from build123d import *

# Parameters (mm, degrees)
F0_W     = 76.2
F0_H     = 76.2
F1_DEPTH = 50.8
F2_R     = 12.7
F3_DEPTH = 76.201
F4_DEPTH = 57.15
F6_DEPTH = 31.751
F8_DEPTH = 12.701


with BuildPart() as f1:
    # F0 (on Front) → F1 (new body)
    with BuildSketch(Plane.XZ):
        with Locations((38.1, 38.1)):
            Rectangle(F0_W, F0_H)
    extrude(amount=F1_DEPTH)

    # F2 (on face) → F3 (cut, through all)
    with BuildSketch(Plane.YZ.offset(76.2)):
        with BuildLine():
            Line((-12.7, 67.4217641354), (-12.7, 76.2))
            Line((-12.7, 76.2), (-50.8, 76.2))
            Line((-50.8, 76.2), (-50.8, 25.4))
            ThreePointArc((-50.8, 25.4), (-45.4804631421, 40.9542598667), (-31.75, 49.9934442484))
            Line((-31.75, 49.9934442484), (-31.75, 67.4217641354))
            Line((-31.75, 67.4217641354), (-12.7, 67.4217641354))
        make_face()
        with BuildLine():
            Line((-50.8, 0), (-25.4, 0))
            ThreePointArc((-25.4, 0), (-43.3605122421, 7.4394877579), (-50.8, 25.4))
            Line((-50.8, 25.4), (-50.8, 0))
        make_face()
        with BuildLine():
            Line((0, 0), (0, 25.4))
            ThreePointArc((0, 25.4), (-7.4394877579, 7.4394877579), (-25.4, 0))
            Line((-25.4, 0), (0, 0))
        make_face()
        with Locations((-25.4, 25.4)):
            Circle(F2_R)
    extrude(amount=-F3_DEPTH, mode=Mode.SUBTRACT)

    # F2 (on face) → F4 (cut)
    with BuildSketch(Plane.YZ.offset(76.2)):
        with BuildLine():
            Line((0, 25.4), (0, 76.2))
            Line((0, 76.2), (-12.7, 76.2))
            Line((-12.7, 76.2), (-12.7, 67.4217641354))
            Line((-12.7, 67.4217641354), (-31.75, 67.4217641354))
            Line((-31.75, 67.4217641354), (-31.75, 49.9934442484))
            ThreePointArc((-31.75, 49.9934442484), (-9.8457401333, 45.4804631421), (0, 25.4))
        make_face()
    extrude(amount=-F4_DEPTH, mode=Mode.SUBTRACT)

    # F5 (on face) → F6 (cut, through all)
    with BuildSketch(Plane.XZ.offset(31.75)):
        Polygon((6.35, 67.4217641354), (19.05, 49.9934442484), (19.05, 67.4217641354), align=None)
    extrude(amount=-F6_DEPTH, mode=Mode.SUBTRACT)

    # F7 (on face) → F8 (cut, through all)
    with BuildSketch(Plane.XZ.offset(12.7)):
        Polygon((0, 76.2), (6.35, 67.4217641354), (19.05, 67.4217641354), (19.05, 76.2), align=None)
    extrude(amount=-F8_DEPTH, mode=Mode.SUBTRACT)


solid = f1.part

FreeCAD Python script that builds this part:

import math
import FreeCAD as App
import Part
import Sketcher
Q = App.Units.Quantity


def add_polygon(sketch, points):
    """Adds a closed chain of lines whose ends are joined by coincident constraints."""
    first, n = sketch.GeometryCount, len(points)
    for a, b in zip(points, points[1:] + points[:1]):
        sketch.addGeometry(Part.LineSegment(App.Vector(*a, 0), App.Vector(*b, 0)), False)
    for i in range(n):
        sketch.addConstraint(Sketcher.Constraint("Coincident", first + i, 2, first + (i + 1) % n, 1))

doc = App.newDocument("Part")
body = doc.addObject("PartDesign::Body", "Body")

# Sketch on XZ plane
sketch1 = doc.addObject("Sketcher::SketchObject", "Sketch")
body.addObject(sketch1)
sketch1.AttachmentSupport = (doc.XZ_Plane, [""])
sketch1.MapMode = "FlatFace"
add_polygon(sketch1, [(0, 76), (0, 0), (76, 0), (76, 76)])  # lines 0-3
sketch1.addConstraint([
    Sketcher.Constraint("Vertical", 0),
    Sketcher.Constraint("Horizontal", 1),
    Sketcher.Constraint("Vertical", 2),
    Sketcher.Constraint("Horizontal", 3),
    Sketcher.Constraint("Coincident", 0, 2, -1, 1),
    Sketcher.Constraint("Equal", 3, 0),
    Sketcher.Constraint("DistanceX", 1, 1, 1, 2, Q("3 in")),
])
pad1 = doc.addObject("PartDesign::Pad", "Pad")
body.addObject(pad1)
pad1.Profile = sketch1
pad1.Length = Q("2 in")

# Sketch on YZ plane
sketch2 = doc.addObject("Sketcher::SketchObject", "Sketch001")
body.addObject(sketch2)
sketch2.AttachmentSupport = (doc.YZ_Plane, [""])
sketch2.MapMode = "FlatFace"
sketch2.AttachmentOffset = App.Placement(App.Vector(0, 0, 3 * 25.4), App.Rotation())
sketch2.addGeometry([
    Part.LineSegment(App.Vector(-13, 67, 0), App.Vector(-13, 76, 0)),  # 0
    Part.LineSegment(App.Vector(-13, 76, 0), App.Vector(-51, 76, 0)),  # 1
    Part.LineSegment(App.Vector(-51, 76, 0), App.Vector(-51, 25, 0)),  # 2
    Part.ArcOfCircle(Part.Circle(App.Vector(-25, 25, 0), App.Vector(0, 0, 1), 25), math.radians(104), math.radians(180)),  # 3
    Part.LineSegment(App.Vector(-32, 50, 0), App.Vector(-32, 67, 0)),  # 4
    Part.LineSegment(App.Vector(-32, 67, 0), App.Vector(-13, 67, 0)),  # 5
    Part.LineSegment(App.Vector(-51, 0, 0), App.Vector(-25, 0, 0)),  # 6
    Part.ArcOfCircle(Part.Circle(App.Vector(-25, 25, 0), App.Vector(0, 0, 1), 25), math.radians(180), math.radians(270)),  # 7
    Part.LineSegment(App.Vector(-51, 25, 0), App.Vector(-51, 0, 0)),  # 8
    Part.LineSegment(App.Vector(0, 0, 0), App.Vector(0, 25, 0)),  # 9
    Part.ArcOfCircle(Part.Circle(App.Vector(-25, 25, 0), App.Vector(0, 0, 1), 25), math.radians(-90), math.radians(0)),  # 10
    Part.LineSegment(App.Vector(-25, 0, 0), App.Vector(0, 0, 0)),  # 11
    Part.Circle(App.Vector(-25, 25, 0), App.Vector(0, 0, 1), 13),  # 12
], False)
sketch2.addConstraint([
    Sketcher.Constraint("Coincident", 0, 2, 1, 1),
    Sketcher.Constraint("Coincident", 1, 2, 2, 1),
    Sketcher.Constraint("Tangent", 2, 2, 3, 2),
    Sketcher.Constraint("Coincident", 3, 1, 4, 1),
    Sketcher.Constraint("Coincident", 4, 2, 5, 1),
    Sketcher.Constraint("Coincident", 5, 2, 0, 1),
    Sketcher.Constraint("Tangent", 6, 2, 7, 2),
    Sketcher.Constraint("Tangent", 7, 1, 8, 1),
    Sketcher.Constraint("Coincident", 8, 2, 6, 1),
    Sketcher.Constraint("Tangent", 9, 2, 10, 2),
    Sketcher.Constraint("Tangent", 10, 1, 11, 1),
    Sketcher.Constraint("Coincident", 11, 2, 9, 1),
    Sketcher.Constraint("Vertical", 0),
    Sketcher.Constraint("Horizontal", 1),
    Sketcher.Constraint("Vertical", 2),
    Sketcher.Constraint("Vertical", 4),
    Sketcher.Constraint("Horizontal", 5),
    Sketcher.Constraint("Horizontal", 6),
    Sketcher.Constraint("Vertical", 8),
    Sketcher.Constraint("Vertical", 9),
    Sketcher.Constraint("Horizontal", 11),
    Sketcher.Constraint("Coincident", 11, 2, -1, 1),
    Sketcher.Constraint("Coincident", 7, 3, 3, 3),
    Sketcher.Constraint("Coincident", 10, 3, 3, 3),
    Sketcher.Constraint("Coincident", 12, 3, 3, 3),
    Sketcher.Constraint("Equal", 3, 7),
    Sketcher.Constraint("Equal", 7, 10),
    Sketcher.Constraint("Diameter", 12, Q("1 in")),
    Sketcher.Constraint("Radius", 3, Q("1 in")),
    Sketcher.Constraint("DistanceY", 2, 2, 2, 1, Q("2 in")),
    Sketcher.Constraint("DistanceX", 1, 2, 1, 1, Q("1.5 in")),
    Sketcher.Constraint("DistanceX", 5, 1, 5, 2, Q("0.75 in")),
    Sketcher.Constraint("DistanceY", 0, 1, 0, 2, Q("0.3455998 in")),
])
pocket1 = doc.addObject("PartDesign::Pocket", "Pocket")
body.addObject(pocket1)
pocket1.Profile = sketch2
pocket1.Type = "ThroughAll"

# Sketch on YZ plane
sketch3 = doc.addObject("Sketcher::SketchObject", "Sketch002")
body.addObject(sketch3)
sketch3.AttachmentSupport = (doc.YZ_Plane, [""])
sketch3.MapMode = "FlatFace"
sketch3.AttachmentOffset = App.Placement(App.Vector(0, 0, 3 * 25.4), App.Rotation())
sketch3.addGeometry([
    Part.LineSegment(App.Vector(0, 25, 0), App.Vector(0, 76, 0)),  # 0
    Part.LineSegment(App.Vector(0, 76, 0), App.Vector(-13, 76, 0)),  # 1
    Part.LineSegment(App.Vector(-13, 76, 0), App.Vector(-13, 67, 0)),  # 2
    Part.LineSegment(App.Vector(-13, 67, 0), App.Vector(-32, 67, 0)),  # 3
    Part.LineSegment(App.Vector(-32, 67, 0), App.Vector(-32, 50, 0)),  # 4
    Part.ArcOfCircle(Part.Circle(App.Vector(-25, 25, 0), App.Vector(0, 0, 1), 25), math.radians(0), math.radians(104)),  # 5
], False)
sketch3.addConstraint([
    Sketcher.Constraint("Coincident", 0, 2, 1, 1),
    Sketcher.Constraint("Coincident", 1, 2, 2, 1),
    Sketcher.Constraint("Coincident", 2, 2, 3, 1),
    Sketcher.Constraint("Coincident", 3, 2, 4, 1),
    Sketcher.Constraint("Coincident", 4, 2, 5, 2),
    Sketcher.Constraint("Tangent", 5, 1, 0, 1),
    Sketcher.Constraint("Vertical", 0),
    Sketcher.Constraint("Horizontal", 1),
    Sketcher.Constraint("Vertical", 2),
    Sketcher.Constraint("Horizontal", 3),
    Sketcher.Constraint("Vertical", 4),
    Sketcher.Constraint("PointOnObject", 0, 2, -2),
    Sketcher.Constraint("Radius", 5, Q("1 in")),
    Sketcher.Constraint("DistanceY", 0, 1, 0, 2, Q("2 in")),
    Sketcher.Constraint("DistanceX", 1, 2, 1, 1, Q("0.5 in")),
    Sketcher.Constraint("DistanceY", -1, 1, 5, 3, Q("1 in")),
    Sketcher.Constraint("DistanceX", 3, 2, 3, 1, Q("0.75 in")),
    Sketcher.Constraint("DistanceY", 2, 2, 2, 1, Q("0.3455998 in")),
])
pocket2 = doc.addObject("PartDesign::Pocket", "Pocket001")
body.addObject(pocket2)
pocket2.Profile = sketch3
pocket2.Length = Q("2.25 in")

# Sketch on XZ plane
sketch4 = doc.addObject("Sketcher::SketchObject", "Sketch003")
body.addObject(sketch4)
sketch4.AttachmentSupport = (doc.XZ_Plane, [""])
sketch4.MapMode = "FlatFace"
sketch4.AttachmentOffset = App.Placement(App.Vector(0, 0, 1.25 * 25.4), App.Rotation())
add_polygon(sketch4, [(6, 67), (19, 50), (19, 67)])  # lines 0-2
sketch4.addConstraint([
    Sketcher.Constraint("Vertical", 1),
    Sketcher.Constraint("Horizontal", 2),
    Sketcher.Constraint("DistanceX", 2, 2, 2, 1, Q("0.5 in")),
    Sketcher.Constraint("DistanceX", -1, 1, 0, 2, Q("0.75 in")),
    Sketcher.Constraint("DistanceY", -1, 1, 1, 2, Q("2.6544002 in")),
    Sketcher.Constraint("Distance", 0, Q("21.564701 mm")),
])
pocket3 = doc.addObject("PartDesign::Pocket", "Pocket002")
body.addObject(pocket3)
pocket3.Profile = sketch4
pocket3.Type = "ThroughAll"

# Sketch on XZ plane
sketch5 = doc.addObject("Sketcher::SketchObject", "Sketch004")
body.addObject(sketch5)
sketch5.AttachmentSupport = (doc.XZ_Plane, [""])
sketch5.MapMode = "FlatFace"
sketch5.AttachmentOffset = App.Placement(App.Vector(0, 0, 0.5 * 25.4), App.Rotation())
add_polygon(sketch5, [(0, 76), (6, 67), (19, 67), (19, 76)])  # lines 0-3
sketch5.addConstraint([
    Sketcher.Constraint("Horizontal", 1),
    Sketcher.Constraint("Vertical", 2),
    Sketcher.Constraint("Horizontal", 3),
    Sketcher.Constraint("PointOnObject", 3, 2, -2),
    Sketcher.Constraint("DistanceX", 1, 1, 1, 2, Q("0.5 in")),
    Sketcher.Constraint("DistanceY", -1, 1, 2, 2, Q("3 in")),
    Sketcher.Constraint("DistanceX", 3, 2, 3, 1, Q("0.75 in")),
    Sketcher.Constraint("DistanceY", 2, 1, 2, 2, Q("0.3455998 in")),
])
pocket4 = doc.addObject("PartDesign::Pocket", "Pocket003")
body.addObject(pocket4)
pocket4.Profile = sketch5
pocket4.Type = "ThroughAll"

doc.recompute()
